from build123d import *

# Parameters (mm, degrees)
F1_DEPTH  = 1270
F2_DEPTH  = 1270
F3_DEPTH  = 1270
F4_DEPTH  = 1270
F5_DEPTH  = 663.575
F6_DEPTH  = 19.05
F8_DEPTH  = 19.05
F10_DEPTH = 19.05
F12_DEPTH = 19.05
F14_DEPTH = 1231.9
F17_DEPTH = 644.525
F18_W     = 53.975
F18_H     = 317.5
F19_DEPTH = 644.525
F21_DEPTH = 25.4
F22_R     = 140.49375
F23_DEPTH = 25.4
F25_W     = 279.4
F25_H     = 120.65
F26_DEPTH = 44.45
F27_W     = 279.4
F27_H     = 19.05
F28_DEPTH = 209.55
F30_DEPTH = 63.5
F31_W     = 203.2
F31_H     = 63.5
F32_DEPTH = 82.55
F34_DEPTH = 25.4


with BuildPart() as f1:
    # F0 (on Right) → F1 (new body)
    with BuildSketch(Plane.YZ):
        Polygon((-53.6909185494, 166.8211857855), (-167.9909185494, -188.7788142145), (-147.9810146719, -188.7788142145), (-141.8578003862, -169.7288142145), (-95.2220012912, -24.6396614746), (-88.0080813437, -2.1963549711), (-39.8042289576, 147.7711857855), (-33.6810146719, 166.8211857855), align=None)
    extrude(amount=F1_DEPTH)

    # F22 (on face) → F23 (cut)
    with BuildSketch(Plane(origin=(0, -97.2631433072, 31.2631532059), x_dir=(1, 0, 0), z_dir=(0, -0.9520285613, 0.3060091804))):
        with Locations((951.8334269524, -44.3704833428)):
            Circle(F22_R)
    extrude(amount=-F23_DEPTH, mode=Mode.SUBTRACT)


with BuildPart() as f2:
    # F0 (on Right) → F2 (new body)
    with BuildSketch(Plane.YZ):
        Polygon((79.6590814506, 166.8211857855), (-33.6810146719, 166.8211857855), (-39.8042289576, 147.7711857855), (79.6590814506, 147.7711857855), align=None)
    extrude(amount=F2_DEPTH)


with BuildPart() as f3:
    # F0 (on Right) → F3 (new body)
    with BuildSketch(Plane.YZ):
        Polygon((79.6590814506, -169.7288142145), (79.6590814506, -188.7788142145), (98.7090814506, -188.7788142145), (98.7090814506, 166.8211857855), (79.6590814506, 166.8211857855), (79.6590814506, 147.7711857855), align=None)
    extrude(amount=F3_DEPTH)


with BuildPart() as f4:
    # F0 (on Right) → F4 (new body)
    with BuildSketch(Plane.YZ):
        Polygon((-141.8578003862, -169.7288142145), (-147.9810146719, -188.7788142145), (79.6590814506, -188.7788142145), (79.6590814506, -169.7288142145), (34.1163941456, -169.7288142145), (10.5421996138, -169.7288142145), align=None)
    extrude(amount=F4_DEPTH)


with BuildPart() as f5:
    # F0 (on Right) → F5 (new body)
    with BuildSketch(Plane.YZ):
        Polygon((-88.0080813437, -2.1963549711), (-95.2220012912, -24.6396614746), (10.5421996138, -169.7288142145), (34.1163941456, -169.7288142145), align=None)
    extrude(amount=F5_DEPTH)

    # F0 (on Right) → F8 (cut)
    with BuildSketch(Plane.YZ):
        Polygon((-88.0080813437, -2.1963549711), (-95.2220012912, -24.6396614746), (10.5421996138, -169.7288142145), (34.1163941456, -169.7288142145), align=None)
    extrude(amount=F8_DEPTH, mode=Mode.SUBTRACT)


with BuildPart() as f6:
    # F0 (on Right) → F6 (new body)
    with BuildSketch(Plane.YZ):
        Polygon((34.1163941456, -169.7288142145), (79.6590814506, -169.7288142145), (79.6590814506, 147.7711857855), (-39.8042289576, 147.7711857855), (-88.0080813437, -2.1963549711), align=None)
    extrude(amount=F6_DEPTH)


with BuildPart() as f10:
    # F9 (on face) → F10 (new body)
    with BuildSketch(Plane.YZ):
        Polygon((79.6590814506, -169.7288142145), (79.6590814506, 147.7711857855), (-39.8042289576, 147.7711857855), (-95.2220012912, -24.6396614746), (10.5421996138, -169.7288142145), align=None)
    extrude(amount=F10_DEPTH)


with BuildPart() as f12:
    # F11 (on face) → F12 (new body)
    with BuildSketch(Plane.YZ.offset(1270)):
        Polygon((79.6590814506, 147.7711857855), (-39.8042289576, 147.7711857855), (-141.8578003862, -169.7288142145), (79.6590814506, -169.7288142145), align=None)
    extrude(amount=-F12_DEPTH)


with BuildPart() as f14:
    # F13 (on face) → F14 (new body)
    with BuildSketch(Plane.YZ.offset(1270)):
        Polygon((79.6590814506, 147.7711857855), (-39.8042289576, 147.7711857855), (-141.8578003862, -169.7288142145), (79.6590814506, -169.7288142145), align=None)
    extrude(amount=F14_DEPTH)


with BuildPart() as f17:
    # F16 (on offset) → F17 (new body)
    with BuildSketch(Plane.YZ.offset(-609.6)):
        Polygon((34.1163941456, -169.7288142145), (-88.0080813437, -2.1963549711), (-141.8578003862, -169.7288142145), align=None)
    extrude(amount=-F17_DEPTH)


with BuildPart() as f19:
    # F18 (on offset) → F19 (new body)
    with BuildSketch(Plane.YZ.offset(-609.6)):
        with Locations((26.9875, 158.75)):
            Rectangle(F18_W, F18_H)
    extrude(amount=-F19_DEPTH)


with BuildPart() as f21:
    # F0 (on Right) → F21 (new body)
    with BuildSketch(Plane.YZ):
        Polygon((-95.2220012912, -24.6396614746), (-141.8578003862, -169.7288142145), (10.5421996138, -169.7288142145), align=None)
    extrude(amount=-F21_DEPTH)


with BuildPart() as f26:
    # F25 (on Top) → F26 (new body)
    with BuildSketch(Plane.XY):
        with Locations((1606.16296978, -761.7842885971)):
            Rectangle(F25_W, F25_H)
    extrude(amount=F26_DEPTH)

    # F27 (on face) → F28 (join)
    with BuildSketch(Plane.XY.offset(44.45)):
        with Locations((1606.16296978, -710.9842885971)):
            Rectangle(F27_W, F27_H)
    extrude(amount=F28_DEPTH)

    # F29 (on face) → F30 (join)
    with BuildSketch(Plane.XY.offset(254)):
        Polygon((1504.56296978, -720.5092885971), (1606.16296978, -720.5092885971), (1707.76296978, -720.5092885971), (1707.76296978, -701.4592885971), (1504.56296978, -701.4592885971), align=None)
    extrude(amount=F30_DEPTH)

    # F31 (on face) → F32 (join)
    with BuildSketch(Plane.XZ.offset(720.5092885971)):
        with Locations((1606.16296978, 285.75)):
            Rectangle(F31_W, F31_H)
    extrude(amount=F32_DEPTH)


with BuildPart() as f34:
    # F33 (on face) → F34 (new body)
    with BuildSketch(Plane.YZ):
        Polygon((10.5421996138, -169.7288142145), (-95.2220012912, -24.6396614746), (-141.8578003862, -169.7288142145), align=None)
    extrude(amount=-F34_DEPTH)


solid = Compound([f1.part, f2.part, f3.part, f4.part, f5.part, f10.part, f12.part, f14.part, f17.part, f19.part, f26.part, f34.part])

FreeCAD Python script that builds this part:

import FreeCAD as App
import Part
import Sketcher
from FreeCAD import Vector
Q = App.Units.Quantity


def add_polygon(sketch, points):
    """Adds a closed chain of lines whose ends are joined by coincident constraints."""
    first, n = sketch.GeometryCount, len(points)
    for a, b in zip(points, points[1:] + points[:1]):
        sketch.addGeometry(Part.LineSegment(App.Vector(*a, 0), App.Vector(*b, 0)), False)
    for i in range(n):
        sketch.addConstraint(Sketcher.Constraint("Coincident", first + i, 2, first + (i + 1) % n, 1))

doc = App.newDocument("Part")
params = doc.addObject("Spreadsheet::Sheet", "Params")
for row, (alias, value) in enumerate([
    ("pad1_length", "50 in"),
    ("sketch2_diameter", "11.0625 in"),
    ("pocket1_length", "1 in"),
    ("sketch3_height", "0.75 in"),
    ("pad2_length", "50 in"),
    ("sketch4_height", "14 in"),
    ("sketch4_width", "0.75 in"),
    ("pad3_length", "50 in"),
    ("sketch5_height", "0.75 in"),
    ("pad4_length", "50 in"),
    ("pad5_length", "26.125 in"),
    ("pocket2_length", "0.75 in"),
    ("sketch8_height", "12.5 in"),
    ("pad6_length", "0.75 in"),
    ("sketch9_height", "12.5 in"),
    ("pad7_length", "0.75 in"),
    ("sketch10_height", "12.5 in"),
    ("pad8_length", "0.75 in"),
    ("sketch11_height", "12.5 in"),
    ("pad9_length", "48.5 in"),
    ("pad10_length", "25.375 in"),
    ("sketch13_height", "12.5 in"),
    ("sketch13_width", "2.125 in"),
    ("pad11_length", "25.375 in"),
    ("sketch14_width", "6 in"),
    ("sketch14_length", "6 in"),
    ("pad12_length", "1 in"),
    ("sketch15_width", "11 in"),
    ("sketch15_height", "4.75 in"),
    ("pad13_length", "1.75 in"),
    ("sketch16_width", "11 in"),
    ("sketch16_height", "0.75 in"),
    ("pad14_length", "8.25 in"),
    ("sketch17_width", "8 in"),
    ("sketch17_height", "0.75 in"),
    ("pad15_length", "2.5 in"),
    ("sketch18_width", "8 in"),
    ("sketch18_height", "2.5 in"),
    ("pad16_length", "3.25 in"),
    ("sketch19_width", "6 in"),
    ("sketch19_length", "6 in"),
    ("pad17_length", "1 in"),
], start=1):
    params.set(f"A{row}", alias)
    params.set(f"B{row}", "=" + value)
    params.setAlias(f"B{row}", alias)

body = doc.addObject("PartDesign::Body", "Body")

# Sketch on YZ plane
sketch1 = body.newObject("Sketcher::SketchObject", "Sketch")
sketch1.AttachmentSupport = (doc.getObject("YZ_Plane"), [""])
sketch1.MapMode = "FlatFace"
add_polygon(sketch1, [(-54, 167), (-168, -189), (-148, -189), (-95, -25), (-88, -2), (-34, 167)])  # lines 0-5
sketch1.addConstraint([
    Sketcher.Constraint("Horizontal", 1),
    Sketcher.Constraint("Horizontal", 5),
    Sketcher.Constraint("Parallel", 0, 2),
    Sketcher.Constraint("Parallel", 2, 3),
    Sketcher.Constraint("Parallel", 3, 4),
    Sketcher.Constraint("DistanceY", 1, 2, 4, 2, Q("14 in")),
    Sketcher.Constraint("DistanceX", 1, 2, 4, 2, Q("4.5 in")),
    Sketcher.Constraint("DistanceX", 2, 2, -1, 1, Q("95.222001 mm")),
    Sketcher.Constraint("DistanceX", 1, 1, 1, 2, Q("20.009904 mm")),
    Sketcher.Constraint("DistanceX", 0, 2, -1, 1, Q("167.990919 mm")),
    Sketcher.Constraint("DistanceY", 2, 2, -1, 1, Q("24.639661 mm")),
    Sketcher.Constraint("DistanceX", 3, 2, -1, 1, Q("88.008081 mm")),
])
pad1 = body.newObject("PartDesign::Pad", "Pad")
pad1.Profile = sketch1
pad1.setExpression("Length", "Params.pad1_length")

# Sketch on an angled plane
sketch2 = body.newObject("Sketcher::SketchObject", "Sketch001")
sketch2.Placement = App.Placement(Vector(0, -97.263143, 31.263153), App.Rotation(Vector(1, 0, 0), Vector(0, 0.30600918, 0.952028561), Vector(0, -0.952028561, 0.30600918), "ZXY"))
sketch2.addGeometry(Part.Circle(Vector(952, -44, 0), Vector(0, 0, 1), 140), False)
sketch2.addConstraint([
    Sketcher.Constraint("Diameter", 0, Q("11.0625 in")),
    Sketcher.Constraint("DistanceX", -1, 1, 0, 3, Q("951.833427 mm")),
    Sketcher.Constraint("DistanceY", 0, 3, -1, 1, Q("44.370483 mm")),
])
sketch2.setExpression("Constraints[0]", "Params.sketch2_diameter")
pocket1 = body.newObject("PartDesign::Pocket", "Pocket")
pocket1.Profile = sketch2
pocket1.setExpression("Length", "Params.pocket1_length")
body2 = doc.addObject("PartDesign::Body", "Body001")

# Sketch on YZ plane
sketch3 = body2.newObject("Sketcher::SketchObject", "Sketch002")
sketch3.AttachmentSupport = (doc.getObject("YZ_Plane001"), [""])
sketch3.MapMode = "FlatFace"
add_polygon(sketch3, [(80, 167), (-34, 167), (-40, 148), (80, 148)])  # lines 0-3
sketch3.addConstraint([
    Sketcher.Constraint("Horizontal", 0),
    Sketcher.Constraint("Horizontal", 2),
    Sketcher.Constraint("Vertical", 3),
    Sketcher.Constraint("DistanceY", 3, 1, 3, 2, Q("0.75 in")),
    Sketcher.Constraint("DistanceX", 2, 1, 2, 2, Q("119.46331 mm")),
    Sketcher.Constraint("DistanceX", 0, 2, 0, 1, Q("113.340096 mm")),
    Sketcher.Constraint("DistanceX", 1, 2, -1, 1, Q("39.804229 mm")),
    Sketcher.Constraint("DistanceY", -1, 1, 0, 2, Q("166.821186 mm")),
])
sketch3.setExpression("Constraints[7]", "Params.sketch3_height")
pad2 = body2.newObject("PartDesign::Pad", "Pad001")
pad2.Profile = sketch3
pad2.setExpression("Length", "Params.pad2_length")
body3 = doc.addObject("PartDesign::Body", "Body002")

# Sketch on YZ plane
sketch4 = body3.newObject("Sketcher::SketchObject", "Sketch003")
sketch4.AttachmentSupport = (doc.getObject("YZ_Plane002"), [""])
sketch4.MapMode = "FlatFace"
add_polygon(sketch4, [(80, -189), (99, -189), (99, 167), (80, 167)])  # lines 0-3
sketch4.addConstraint([
    Sketcher.Constraint("Horizontal", 0),
    Sketcher.Constraint("Vertical", 1),
    Sketcher.Constraint("Horizontal", 2),
    Sketcher.Constraint("Vertical", 3),
    Sketcher.Constraint("DistanceY", 1, 1, 1, 2, Q("14 in")),
    Sketcher.Constraint("DistanceX", 0, 1, 0, 2, Q("0.75 in")),
    Sketcher.Constraint("DistanceX", -1, 1, 0, 2, Q("98.709081 mm")),
    Sketcher.Constraint("DistanceY", 0, 2, -1, 1, Q("188.778814 mm")),
])
sketch4.setExpression("Constraints[8]", "Params.sketch4_height")
sketch4.setExpression("Constraints[9]", "Params.sketch4_width")
pad3 = body3.newObject("PartDesign::Pad", "Pad002")
pad3.Profile = sketch4
pad3.setExpression("Length", "Params.pad3_length")
body4 = doc.addObject("PartDesign::Body", "Body003")

# Sketch on YZ plane
sketch5 = body4.newObject("Sketcher::SketchObject", "Sketch004")
sketch5.AttachmentSupport = (doc.getObject("YZ_Plane003"), [""])
sketch5.MapMode = "FlatFace"
add_polygon(sketch5, [(-142, -170), (-148, -189), (80, -189), (80, -170)])  # lines 0-3
sketch5.addConstraint([
    Sketcher.Constraint("Horizontal", 1),
    Sketcher.Constraint("Vertical", 2),
    Sketcher.Constraint("Horizontal", 3),
    Sketcher.Constraint("DistanceY", 2, 1, 2, 2, Q("0.75 in")),
    Sketcher.Constraint("DistanceX", 3, 2, 3, 1, Q("221.516882 mm")),
    Sketcher.Constraint("DistanceX", 3, 2, -1, 1, Q("141.8578 mm")),
    Sketcher.Constraint("DistanceX", 1, 1, 1, 2, Q("227.640096 mm")),
    Sketcher.Constraint("DistanceY", 0, 2, -1, 1, Q("188.778814 mm")),
])
sketch5.setExpression("Constraints[7]", "Params.sketch5_height")
pad4 = body4.newObject("PartDesign::Pad", "Pad003")
pad4.Profile = sketch5
pad4.setExpression("Length", "Params.pad4_length")
body5 = doc.addObject("PartDesign::Body", "Body004")

# Sketch on YZ plane
sketch6 = body5.newObject("Sketcher::SketchObject", "Sketch005")
sketch6.AttachmentSupport = (doc.getObject("YZ_Plane004"), [""])
sketch6.MapMode = "FlatFace"
add_polygon(sketch6, [(-88, -2), (-95, -25), (11, -170), (34, -170)])  # lines 0-3
sketch6.addConstraint([
    Sketcher.Constraint("Horizontal", 2),
    Sketcher.Constraint("Parallel", 1, 3),
    Sketcher.Constraint("DistanceX", 0, 2, -1, 1, Q("95.222001 mm")),
    Sketcher.Constraint("DistanceX", -1, 1, 1, 2, Q("10.5422 mm")),
    Sketcher.Constraint("Distance", 3, Q("207.319831 mm")),
    Sketcher.Constraint("DistanceX", 2, 1, 2, 2, Q("23.574195 mm")),
    Sketcher.Constraint("DistanceY", 0, 2, -1, 1, Q("24.639661 mm")),
    Sketcher.Constraint("DistanceX", 3, 2, -1, 1, Q("88.008081 mm")),
])
pad5 = body5.newObject("PartDesign::Pad", "Pad004")
pad5.Profile = sketch6
pad5.setExpression("Length", "Params.pad5_length")

# Sketch on YZ plane
sketch7 = body5.newObject("Sketcher::SketchObject", "Sketch006")
sketch7.AttachmentSupport = (doc.getObject("YZ_Plane004"), [""])
sketch7.MapMode = "FlatFace"
add_polygon(sketch7, [(-88, -2), (-95, -25), (11, -170), (34, -170)])  # lines 0-3
sketch7.addConstraint([
    Sketcher.Constraint("Horizontal", 2),
    Sketcher.Constraint("Parallel", 1, 3),
    Sketcher.Constraint("DistanceX", 0, 2, -1, 1, Q("95.222001 mm")),
    Sketcher.Constraint("DistanceX", -1, 1, 1, 2, Q("10.5422 mm")),
    Sketcher.Constraint("Distance", 3, Q("207.319831 mm")),
    Sketcher.Constraint("DistanceX", 2, 1, 2, 2, Q("23.574195 mm")),
    Sketcher.Constraint("DistanceY", 0, 2, -1, 1, Q("24.639661 mm")),
    Sketcher.Constraint("DistanceX", 3, 2, -1, 1, Q("88.008081 mm")),
])
pocket2 = body5.newObject("PartDesign::Pocket", "Pocket001")
pocket2.Profile = sketch7
pocket2.setExpression("Length", "Params.pocket2_length")
pocket2.Reversed = True
body6 = doc.addObject("PartDesign::Body", "Body005")

# Sketch on YZ plane
sketch8 = body6.newObject("Sketcher::SketchObject", "Sketch007")
sketch8.AttachmentSupport = (doc.getObject("YZ_Plane005"), [""])
sketch8.MapMode = "FlatFace"
add_polygon(sketch8, [(34, -170), (80, -170), (80, 148), (-40, 148), (-88, -2)])  # lines 0-4
sketch8.addConstraint([
    Sketcher.Constraint("Horizontal", 0),
    Sketcher.Constraint("Vertical", 1),
    Sketcher.Constraint("Horizontal", 2),
    Sketcher.Constraint("DistanceY", 1, 1, 1, 2, Q("12.5 in")),
    Sketcher.Constraint("DistanceX", 2, 2, 2, 1, Q("119.46331 mm")),
    Sketcher.Constraint("Distance", 4, Q("207.319831 mm")),
    Sketcher.Constraint("DistanceX", 0, 1, 0, 2, Q("45.542687 mm")),
    Sketcher.Constraint("DistanceX", -1, 1, 0, 2, Q("79.659081 mm")),
    Sketcher.Constraint("DistanceX", 3, 2, -1, 1, Q("88.008081 mm")),
    Sketcher.Constraint("DistanceY", 0, 2, -1, 1, Q("169.728814 mm")),
])
sketch8.setExpression("Constraints[8]", "Params.sketch8_height")
pad6 = body6.newObject("PartDesign::Pad", "Pad005")
pad6.Profile = sketch8
pad6.setExpression("Length", "Params.pad6_length")
body7 = doc.addObject("PartDesign::Body", "Body006")

# Sketch on YZ plane
sketch9 = body7.newObject("Sketcher::SketchObject", "Sketch008")
sketch9.AttachmentSupport = (doc.getObject("YZ_Plane006"), [""])
sketch9.MapMode = "FlatFace"
add_polygon(sketch9, [(80, -170), (80, 148), (-40, 148), (-95, -25), (11, -170)])  # lines 0-4
sketch9.addConstraint([
    Sketcher.Constraint("Vertical", 0),
    Sketcher.Constraint("Horizontal", 1),
    Sketcher.Constraint("Horizontal", 4),
    Sketcher.Constraint("DistanceY", 0, 1, 0, 2, Q("12.5 in")),
    Sketcher.Constraint("DistanceX", 1, 2, 1, 1, Q("119.46331 mm")),
    Sketcher.Constraint("DistanceX", 4, 1, 4, 2, Q("69.116882 mm")),
    Sketcher.Constraint("DistanceX", 2, 2, -1, 1, Q("95.222001 mm")),
    Sketcher.Constraint("DistanceX", -1, 1, 3, 2, Q("10.5422 mm")),
    Sketcher.Constraint("DistanceY", 2, 2, -1, 1, Q("24.639661 mm")),
    Sketcher.Constraint("Distance", 2, Q("181.098398 mm")),
])
sketch9.setExpression("Constraints[8]", "Params.sketch9_height")
pad7 = body7.newObject("PartDesign::Pad", "Pad006")
pad7.Profile = sketch9
pad7.setExpression("Length", "Params.pad7_length")
body8 = doc.addObject("PartDesign::Body", "Body007")

# Sketch on YZ plane
sketch10 = body8.newObject("Sketcher::SketchObject", "Sketch009")
sketch10.AttachmentSupport = (doc.getObject("YZ_Plane007"), [""])
sketch10.MapMode = "FlatFace"
sketch10.AttachmentOffset = App.Placement(Vector(0, 0, 50 * 25.4), App.Rotation())
add_polygon(sketch10, [(80, 148), (-40, 148), (-142, -170), (80, -170)])  # lines 0-3
sketch10.addConstraint([
    Sketcher.Constraint("Horizontal", 0),
    Sketcher.Constraint("Horizontal", 2),
    Sketcher.Constraint("Vertical", 3),
    Sketcher.Constraint("DistanceY", 3, 1, 3, 2, Q("12.5 in")),
    Sketcher.Constraint("DistanceX", 0, 2, 0, 1, Q("119.46331 mm")),
    Sketcher.Constraint("DistanceX", 2, 1, 2, 2, Q("221.516882 mm")),
    Sketcher.Constraint("DistanceX", 1, 2, -1, 1, Q("141.8578 mm")),
    Sketcher.Constraint("DistanceY", -1, 1, 0, 2, Q("147.771186 mm")),
])
sketch10.setExpression("Constraints[7]", "Params.sketch10_height")
pad8 = body8.newObject("PartDesign::Pad", "Pad007")
pad8.Profile = sketch10
pad8.setExpression("Length", "Params.pad8_length")
pad8.Reversed = True
body9 = doc.addObject("PartDesign::Body", "Body008")

# Sketch on YZ plane
sketch11 = body9.newObject("Sketcher::SketchObject", "Sketch010")
sketch11.AttachmentSupport = (doc.getObject("YZ_Plane008"), [""])
sketch11.MapMode = "FlatFace"
sketch11.AttachmentOffset = App.Placement(Vector(0, 0, 50 * 25.4), App.Rotation())
add_polygon(sketch11, [(80, 148), (-40, 148), (-142, -170), (80, -170)])  # lines 0-3
sketch11.addConstraint([
    Sketcher.Constraint("Horizontal", 0),
    Sketcher.Constraint("Horizontal", 2),
    Sketcher.Constraint("Vertical", 3),
    Sketcher.Constraint("DistanceY", 3, 1, 3, 2, Q("12.5 in")),
    Sketcher.Constraint("DistanceX", 0, 2, 0, 1, Q("119.46331 mm")),
    Sketcher.Constraint("DistanceX", 2, 1, 2, 2, Q("221.516882 mm")),
    Sketcher.Constraint("DistanceX", 1, 2, -1, 1, Q("141.8578 mm")),
    Sketcher.Constraint("DistanceY", -1, 1, 0, 2, Q("147.771186 mm")),
])
sketch11.setExpression("Constraints[7]", "Params.sketch11_height")
pad9 = body9.newObject("PartDesign::Pad", "Pad008")
pad9.Profile = sketch11
pad9.setExpression("Length", "Params.pad9_length")
body10 = doc.addObject("PartDesign::Body", "Body009")

# Sketch on YZ plane
sketch12 = body10.newObject("Sketcher::SketchObject", "Sketch011")
sketch12.AttachmentSupport = (doc.getObject("YZ_Plane009"), [""])
sketch12.MapMode = "FlatFace"
sketch12.AttachmentOffset = App.Placement(Vector(0, 0, -24 * 25.4), App.Rotation())
add_polygon(sketch12, [(34, -170), (-88, -2), (-142, -170)])  # lines 0-2
sketch12.addConstraint([
    Sketcher.Constraint("Horizontal", 2),
    Sketcher.Constraint("DistanceX", 1, 2, -1, 1, Q("141.8578 mm")),
    Sketcher.Constraint("Distance", 0, Q("207.319831 mm")),
    Sketcher.Constraint("DistanceX", 2, 1, 2, 2, Q("175.974195 mm")),
    Sketcher.Constraint("DistanceX", 0, 2, -1, 1, Q("88.008081 mm")),
    Sketcher.Constraint("DistanceY", 0, 2, -1, 1, Q("2.196355 mm")),
])
pad10 = body10.newObject("PartDesign::Pad", "Pad009")
pad10.Profile = sketch12
pad10.setExpression("Length", "Params.pad10_length")
pad10.Reversed = True
body11 = doc.addObject("PartDesign::Body", "Body010")

# Sketch on YZ plane
sketch13 = body11.newObject("Sketcher::SketchObject", "Sketch012")
sketch13.AttachmentSupport = (doc.getObject("YZ_Plane010"), [""])
sketch13.MapMode = "FlatFace"
sketch13.AttachmentOffset = App.Placement(Vector(0, 0, -24 * 25.4), App.Rotation())
add_polygon(sketch13, [(0, 318), (0, 0), (54, 0), (54, 318)])  # lines 0-3
sketch13.addConstraint([
    Sketcher.Constraint("Vertical", 0),
    Sketcher.Constraint("Horizontal", 1),
    Sketcher.Constraint("Vertical", 2),
    Sketcher.Constraint("Horizontal", 3),
    Sketcher.Constraint("Coincident", 0, 2, -1, 1),
    Sketcher.Constraint("DistanceY", 0, 2, 0, 1, Q("12.5 in")),
    Sketcher.Constraint("DistanceX", 1, 1, 1, 2, Q("2.125 in")),
])
sketch13.setExpression("Constraints[9]", "Params.sketch13_height")
sketch13.setExpression("Constraints[10]", "Params.sketch13_width")
pad11 = body11.newObject("PartDesign::Pad", "Pad010")
pad11.Profile = sketch13
pad11.setExpression("Length", "Params.pad11_length")
pad11.Reversed = True
body12 = doc.addObject("PartDesign::Body", "Body011")

# Sketch on YZ plane
sketch14 = body12.newObject("Sketcher::SketchObject", "Sketch013")
sketch14.AttachmentSupport = (doc.getObject("YZ_Plane011"), [""])
sketch14.MapMode = "FlatFace"
add_polygon(sketch14, [(-95, -25), (-142, -170), (11, -170)])  # lines 0-2
sketch14.addConstraint([
    Sketcher.Constraint("Horizontal", 1),
    Sketcher.Constraint("DistanceX", 1, 1, 1, 2, Q("6 in")),
    Sketcher.Constraint("Distance", 0, Q("6 in")),
    Sketcher.Constraint("DistanceX", 0, 2, -1, 1, Q("141.8578 mm")),
    Sketcher.Constraint("DistanceX", 2, 2, -1, 1, Q("95.222001 mm")),
    Sketcher.Constraint("DistanceY", 2, 2, -1, 1, Q("24.639661 mm")),
])
sketch14.setExpression("Constraints[4]", "Params.sketch14_width")
sketch14.setExpression("Constraints[5]", "Params.sketch14_length")
pad12 = body12.newObject("PartDesign::Pad", "Pad011")
pad12.Profile = sketch14
pad12.setExpression("Length", "Params.pad12_length")
pad12.Reversed = True
body13 = doc.addObject("PartDesign::Body", "Body012")

# Sketch on XY plane
sketch15 = body13.newObject("Sketcher::SketchObject", "Sketch014")
sketch15.AttachmentSupport = (doc.getObject("XY_Plane012"), [""])
sketch15.MapMode = "FlatFace"
add_polygon(sketch15, [(1466, -701), (1466, -822), (1746, -822), (1746, -701)])  # lines 0-3
sketch15.addConstraint([
    Sketcher.Constraint("Vertical", 0),
    Sketcher.Constraint("Horizontal", 1),
    Sketcher.Constraint("Vertical", 2),
    Sketcher.Constraint("Horizontal", 3),
    Sketcher.Constraint("DistanceX", 1, 1, 1, 2, Q("11 in")),
    Sketcher.Constraint("DistanceY", 0, 2, 0, 1, Q("4.75 in")),
    Sketcher.Constraint("DistanceX", -1, 1, 0, 2, Q("1466.46297 mm")),
    Sketcher.Constraint("DistanceY", 0, 2, -1, 1, Q("822.109289 mm")),
])
sketch15.setExpression("Constraints[8]", "Params.sketch15_width")
sketch15.setExpression("Constraints[9]", "Params.sketch15_height")
pad13 = body13.newObject("PartDesign::Pad", "Pad012")
pad13.Profile = sketch15
pad13.setExpression("Length", "Params.pad13_length")

# Sketch on XY plane
sketch16 = body13.newObject("Sketcher::SketchObject", "Sketch015")
sketch16.AttachmentSupport = (doc.getObject("XY_Plane012"), [""])
sketch16.MapMode = "FlatFace"
sketch16.AttachmentOffset = App.Placement(Vector(0, 0, 1.75 * 25.4), App.Rotation())
add_polygon(sketch16, [(1466, -701), (1466, -721), (1746, -721), (1746, -701)])  # lines 0-3
sketch16.addConstraint([
    Sketcher.Constraint("Vertical", 0),
    Sketcher.Constraint("Horizontal", 1),
    Sketcher.Constraint("Vertical", 2),
    Sketcher.Constraint("Horizontal", 3),
    Sketcher.Constraint("DistanceX", 1, 1, 1, 2, Q("11 in")),
    Sketcher.Constraint("DistanceY", 0, 2, 0, 1, Q("0.75 in")),
    Sketcher.Constraint("DistanceX", -1, 1, 0, 2, Q("1466.46297 mm")),
    Sketcher.Constraint("DistanceY", 0, 2, -1, 1, Q("720.509289 mm")),
])
sketch16.setExpression("Constraints[8]", "Params.sketch16_width")
sketch16.setExpression("Constraints[9]", "Params.sketch16_height")
pad14 = body13.newObject("PartDesign::Pad", "Pad013")
pad14.Profile = sketch16
pad14.setExpression("Length", "Params.pad14_length")

# Sketch on XY plane
sketch17 = body13.newObject("Sketcher::SketchObject", "Sketch016")
sketch17.AttachmentSupport = (doc.getObject("XY_Plane012"), [""])
sketch17.MapMode = "FlatFace"
sketch17.AttachmentOffset = App.Placement(Vector(0, 0, 10 * 25.4), App.Rotation())
add_polygon(sketch17, [(1505, -721), (1708, -721), (1708, -701), (1505, -701)])  # lines 0-3
sketch17.addConstraint([
    Sketcher.Constraint("Horizontal", 0),
    Sketcher.Constraint("Vertical", 1),
    Sketcher.Constraint("Horizontal", 2),
    Sketcher.Constraint("Vertical", 3),
    Sketcher.Constraint("DistanceX", 0, 1, 0, 2, Q("8 in")),
    Sketcher.Constraint("DistanceY", 1, 1, 1, 2, Q("0.75 in")),
    Sketcher.Constraint("DistanceX", -1, 1, 0, 2, Q("1707.76297 mm")),
    Sketcher.Constraint("DistanceY", 0, 2, -1, 1, Q("720.509289 mm")),
])
sketch17.setExpression("Constraints[8]", "Params.sketch17_width")
sketch17.setExpression("Constraints[9]", "Params.sketch17_height")
pad15 = body13.newObject("PartDesign::Pad", "Pad014")
pad15.Profile = sketch17
pad15.setExpression("Length", "Params.pad15_length")

# Sketch on XZ plane
sketch18 = body13.newObject("Sketcher::SketchObject", "Sketch017")
sketch18.AttachmentSupport = (doc.getObject("XZ_Plane012"), [""])
sketch18.MapMode = "FlatFace"
sketch18.AttachmentOffset = App.Placement(Vector(0, 0, 720.509289), App.Rotation())
add_polygon(sketch18, [(1505, 318), (1505, 254), (1708, 254), (1708, 318)])  # lines 0-3
sketch18.addConstraint([
    Sketcher.Constraint("Vertical", 0),
    Sketcher.Constraint("Horizontal", 1),
    Sketcher.Constraint("Vertical", 2),
    Sketcher.Constraint("Horizontal", 3),
    Sketcher.Constraint("DistanceX", 1, 1, 1, 2, Q("8 in")),
    Sketcher.Constraint("DistanceY", 0, 2, 0, 1, Q("2.5 in")),
    Sketcher.Constraint("DistanceY", -1, 1, 0, 2, Q("10 in")),
    Sketcher.Constraint("DistanceX", -1, 1, 0, 2, Q("1504.56297 mm")),
])
sketch18.setExpression("Constraints[8]", "Params.sketch18_width")
sketch18.setExpression("Constraints[9]", "Params.sketch18_height")
pad16 = body13.newObject("PartDesign::Pad", "Pad015")
pad16.Profile = sketch18
pad16.setExpression("Length", "Params.pad16_length")
body14 = doc.addObject("PartDesign::Body", "Body013")

# Sketch on YZ plane
sketch19 = body14.newObject("Sketcher::SketchObject", "Sketch018")
sketch19.AttachmentSupport = (doc.getObject("YZ_Plane013"), [""])
sketch19.MapMode = "FlatFace"
add_polygon(sketch19, [(11, -170), (-95, -25), (-142, -170)])  # lines 0-2
sketch19.addConstraint([
    Sketcher.Constraint("Horizontal", 2),
    Sketcher.Constraint("DistanceX", 2, 1, 2, 2, Q("6 in")),
    Sketcher.Constraint("Distance", 1, Q("6 in")),
    Sketcher.Constraint("DistanceX", 0, 2, -1, 1, Q("95.222001 mm")),
    Sketcher.Constraint("DistanceX", 1, 2, -1, 1, Q("141.8578 mm")),
    Sketcher.Constraint("DistanceY", 0, 2, -1, 1, Q("24.639661 mm")),
])
sketch19.setExpression("Constraints[4]", "Params.sketch19_width")
sketch19.setExpression("Constraints[5]", "Params.sketch19_length")
pad17 = body14.newObject("PartDesign::Pad", "Pad016")
pad17.Profile = sketch19
pad17.setExpression("Length", "Params.pad17_length")
pad17.Reversed = True
body6.Visibility = False
body12.Visibility = False

doc.recompute()
